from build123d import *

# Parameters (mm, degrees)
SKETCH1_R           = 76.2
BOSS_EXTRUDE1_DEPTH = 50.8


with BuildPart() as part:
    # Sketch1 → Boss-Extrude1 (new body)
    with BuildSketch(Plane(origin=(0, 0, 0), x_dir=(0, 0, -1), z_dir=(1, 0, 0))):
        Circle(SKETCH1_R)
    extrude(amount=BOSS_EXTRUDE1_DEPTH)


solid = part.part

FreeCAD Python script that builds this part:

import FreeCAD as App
import Part
import Sketcher

V = App.Vector
Q = App.Units.Quantity

doc = App.newDocument("Part")
params = doc.addObject("Spreadsheet::Sheet", "Params")
for row, (alias, value) in enumerate([
    ("sketch1_diameter", "6 in"),
    ("pad1_length", "2 in"),
], start=1):
    params.set(f"A{row}", alias)
    params.set(f"B{row}", "=" + value)
    params.setAlias(f"B{row}", alias)

body = doc.addObject("PartDesign::Body", "Body")

sketch1 = doc.addObject("Sketcher::SketchObject", "Sketch")
body.addObject(sketch1)
sketch1.AttachmentSupport = (doc.YZ_Plane, [""])
sketch1.MapMode = "FlatFace"
sketch1.addGeometry(Part.Circle(V(0, 0, 0), V(0, 0, 1), 76), False)
sketch1.addConstraint([
    Sketcher.Constraint("Coincident", 0, 3, -1, 1),
    Sketcher.Constraint("Diameter", 0, Q("6 in")),
])
sketch1.setExpression("Constraints[1]", "Params.sketch1_diameter")
pad1 = doc.addObject("PartDesign::Pad", "Pad")
body.addObject(pad1)
pad1.Profile = sketch1
pad1.setExpression("Length", "Params.pad1_length")

doc.recompute()
